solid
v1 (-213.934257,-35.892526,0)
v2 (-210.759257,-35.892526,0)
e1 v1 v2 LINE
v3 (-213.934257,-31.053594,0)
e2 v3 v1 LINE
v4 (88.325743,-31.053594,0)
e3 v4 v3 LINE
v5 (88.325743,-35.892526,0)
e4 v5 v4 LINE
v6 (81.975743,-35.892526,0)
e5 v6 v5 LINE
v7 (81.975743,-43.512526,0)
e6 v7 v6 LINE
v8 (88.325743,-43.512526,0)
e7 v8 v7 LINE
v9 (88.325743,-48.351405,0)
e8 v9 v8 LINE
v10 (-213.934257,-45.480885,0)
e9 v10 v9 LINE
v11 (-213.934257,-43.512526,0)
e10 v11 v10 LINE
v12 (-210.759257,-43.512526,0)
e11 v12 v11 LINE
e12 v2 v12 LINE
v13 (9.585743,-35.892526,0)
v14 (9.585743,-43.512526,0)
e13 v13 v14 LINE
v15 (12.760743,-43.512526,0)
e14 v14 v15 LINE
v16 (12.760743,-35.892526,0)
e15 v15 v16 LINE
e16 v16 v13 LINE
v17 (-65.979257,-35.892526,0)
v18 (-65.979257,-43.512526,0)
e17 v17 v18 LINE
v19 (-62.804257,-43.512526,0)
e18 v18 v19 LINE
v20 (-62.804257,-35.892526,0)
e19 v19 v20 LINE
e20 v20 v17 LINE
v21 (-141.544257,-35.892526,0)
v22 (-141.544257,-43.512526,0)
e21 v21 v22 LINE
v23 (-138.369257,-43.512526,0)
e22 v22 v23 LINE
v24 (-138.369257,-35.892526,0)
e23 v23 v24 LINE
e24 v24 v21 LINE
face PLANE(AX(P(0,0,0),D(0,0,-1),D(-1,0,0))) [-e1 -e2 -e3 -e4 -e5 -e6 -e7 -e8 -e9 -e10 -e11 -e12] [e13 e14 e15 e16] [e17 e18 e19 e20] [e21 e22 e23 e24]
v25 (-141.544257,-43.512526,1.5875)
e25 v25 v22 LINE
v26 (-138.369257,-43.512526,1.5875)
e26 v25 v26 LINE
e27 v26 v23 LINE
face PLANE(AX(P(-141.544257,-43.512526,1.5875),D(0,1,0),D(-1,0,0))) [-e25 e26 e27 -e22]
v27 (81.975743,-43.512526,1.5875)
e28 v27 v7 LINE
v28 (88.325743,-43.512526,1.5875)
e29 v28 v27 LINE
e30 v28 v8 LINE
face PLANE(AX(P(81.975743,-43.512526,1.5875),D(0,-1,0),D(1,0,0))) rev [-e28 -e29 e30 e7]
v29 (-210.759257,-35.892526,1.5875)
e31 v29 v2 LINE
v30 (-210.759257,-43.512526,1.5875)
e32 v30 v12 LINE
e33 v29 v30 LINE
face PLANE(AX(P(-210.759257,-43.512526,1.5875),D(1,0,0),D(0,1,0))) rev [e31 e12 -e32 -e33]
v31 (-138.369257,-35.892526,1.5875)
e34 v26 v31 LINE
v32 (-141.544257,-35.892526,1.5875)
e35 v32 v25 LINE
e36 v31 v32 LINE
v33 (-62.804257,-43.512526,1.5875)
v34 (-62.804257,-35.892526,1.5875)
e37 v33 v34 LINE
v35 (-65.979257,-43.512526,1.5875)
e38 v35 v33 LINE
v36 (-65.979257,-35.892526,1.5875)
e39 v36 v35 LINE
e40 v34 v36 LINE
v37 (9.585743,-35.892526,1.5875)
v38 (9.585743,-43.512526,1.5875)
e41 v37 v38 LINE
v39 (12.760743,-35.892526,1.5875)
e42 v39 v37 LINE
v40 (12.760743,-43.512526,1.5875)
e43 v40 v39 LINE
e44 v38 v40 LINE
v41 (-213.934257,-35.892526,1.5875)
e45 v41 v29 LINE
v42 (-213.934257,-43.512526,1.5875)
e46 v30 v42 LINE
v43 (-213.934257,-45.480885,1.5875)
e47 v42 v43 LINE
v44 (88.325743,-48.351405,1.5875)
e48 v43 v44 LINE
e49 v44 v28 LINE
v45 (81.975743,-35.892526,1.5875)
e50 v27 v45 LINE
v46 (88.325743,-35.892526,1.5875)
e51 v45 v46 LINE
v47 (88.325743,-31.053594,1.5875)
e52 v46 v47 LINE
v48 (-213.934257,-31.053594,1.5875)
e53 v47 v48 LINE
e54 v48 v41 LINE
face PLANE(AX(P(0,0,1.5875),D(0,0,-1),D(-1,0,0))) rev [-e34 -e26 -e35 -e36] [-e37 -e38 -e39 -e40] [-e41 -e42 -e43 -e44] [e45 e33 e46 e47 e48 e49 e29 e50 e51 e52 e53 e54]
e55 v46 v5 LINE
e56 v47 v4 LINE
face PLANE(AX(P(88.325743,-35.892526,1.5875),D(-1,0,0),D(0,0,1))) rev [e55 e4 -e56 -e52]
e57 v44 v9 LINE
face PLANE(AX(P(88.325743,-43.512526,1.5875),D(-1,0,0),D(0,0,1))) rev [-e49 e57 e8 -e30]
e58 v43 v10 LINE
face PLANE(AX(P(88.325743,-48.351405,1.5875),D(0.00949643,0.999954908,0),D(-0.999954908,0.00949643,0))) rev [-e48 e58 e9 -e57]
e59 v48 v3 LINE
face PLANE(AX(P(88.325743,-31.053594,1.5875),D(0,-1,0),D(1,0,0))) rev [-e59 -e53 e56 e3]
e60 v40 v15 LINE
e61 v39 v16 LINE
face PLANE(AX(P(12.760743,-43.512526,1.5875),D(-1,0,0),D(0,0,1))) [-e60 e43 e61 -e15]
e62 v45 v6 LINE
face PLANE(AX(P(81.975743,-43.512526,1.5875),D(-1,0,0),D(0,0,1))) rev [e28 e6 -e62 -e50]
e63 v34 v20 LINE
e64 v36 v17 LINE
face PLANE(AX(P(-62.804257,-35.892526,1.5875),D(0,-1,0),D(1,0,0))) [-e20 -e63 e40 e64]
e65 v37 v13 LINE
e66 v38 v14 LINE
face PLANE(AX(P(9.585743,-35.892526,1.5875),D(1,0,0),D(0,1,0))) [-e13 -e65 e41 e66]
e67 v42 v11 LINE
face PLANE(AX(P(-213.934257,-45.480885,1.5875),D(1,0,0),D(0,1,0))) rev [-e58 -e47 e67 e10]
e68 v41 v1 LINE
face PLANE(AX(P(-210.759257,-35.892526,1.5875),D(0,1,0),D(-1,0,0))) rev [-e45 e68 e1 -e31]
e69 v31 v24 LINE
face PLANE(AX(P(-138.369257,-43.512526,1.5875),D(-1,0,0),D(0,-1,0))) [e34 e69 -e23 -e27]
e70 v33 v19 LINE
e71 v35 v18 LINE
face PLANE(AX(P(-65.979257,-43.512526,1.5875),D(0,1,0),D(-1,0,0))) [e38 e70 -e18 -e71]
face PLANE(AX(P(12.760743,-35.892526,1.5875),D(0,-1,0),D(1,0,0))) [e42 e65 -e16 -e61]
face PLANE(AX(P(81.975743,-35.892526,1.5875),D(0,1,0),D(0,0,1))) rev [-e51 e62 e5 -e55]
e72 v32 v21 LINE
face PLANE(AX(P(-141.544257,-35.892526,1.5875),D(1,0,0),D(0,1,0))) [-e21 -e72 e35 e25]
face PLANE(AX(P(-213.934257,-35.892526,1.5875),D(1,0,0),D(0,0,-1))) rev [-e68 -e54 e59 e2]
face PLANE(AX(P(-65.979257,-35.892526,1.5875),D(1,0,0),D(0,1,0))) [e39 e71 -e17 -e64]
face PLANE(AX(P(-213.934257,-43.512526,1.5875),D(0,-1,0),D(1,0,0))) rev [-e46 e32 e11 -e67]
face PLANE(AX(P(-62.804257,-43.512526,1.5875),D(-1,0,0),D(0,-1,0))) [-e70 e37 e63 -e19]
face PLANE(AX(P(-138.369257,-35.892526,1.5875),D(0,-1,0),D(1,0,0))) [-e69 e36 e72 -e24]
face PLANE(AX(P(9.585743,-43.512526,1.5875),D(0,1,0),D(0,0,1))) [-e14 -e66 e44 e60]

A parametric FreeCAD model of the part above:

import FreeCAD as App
import Part
import Sketcher

V = App.Vector
Q = App.Units.Quantity

doc = App.newDocument("Part")
body = doc.addObject("PartDesign::Body", "Body")

sketch1 = doc.addObject("Sketcher::SketchObject", "Sketch")
body.addObject(sketch1)
sketch1.AttachmentSupport = (doc.XY_Plane, [""])
sketch1.MapMode = "FlatFace"
sketch1.addGeometry([
    Part.LineSegment(V(88.3, -48.4, 0), V(88.3, -43.5, 0)),
    Part.LineSegment(V(88.3, -43.5, 0), V(82, -43.5, 0)),
    Part.LineSegment(V(82, -43.5, 0), V(82, -35.9, 0)),
    Part.LineSegment(V(82, -35.9, 0), V(88.3, -35.9, 0)),
    Part.LineSegment(V(88.3, -35.9, 0), V(88.3, -31.1, 0)),
    Part.LineSegment(V(88.3, -31.1, 0), V(-213.9, -31.1, 0)),
    Part.LineSegment(V(-213.9, -31.1, 0), V(-213.9, -35.9, 0)),
    Part.LineSegment(V(-213.9, -35.9, 0), V(-210.8, -35.9, 0)),
    Part.LineSegment(V(-210.8, -35.9, 0), V(-210.8, -43.5, 0)),
    Part.LineSegment(V(-210.8, -43.5, 0), V(-213.9, -43.5, 0)),
    Part.LineSegment(V(-213.9, -43.5, 0), V(-213.9, -45.5, 0)),
    Part.LineSegment(V(-213.9, -45.5, 0), V(88.3, -48.4, 0)),
    Part.LineSegment(V(9.6, -43.5, 0), V(9.6, -35.9, 0)),
    Part.LineSegment(V(9.6, -35.9, 0), V(12.8, -35.9, 0)),
    Part.LineSegment(V(12.8, -35.9, 0), V(12.8, -43.5, 0)),
    Part.LineSegment(V(12.8, -43.5, 0), V(9.6, -43.5, 0)),
    Part.LineSegment(V(-66, -43.5, 0), V(-66, -35.9, 0)),
    Part.LineSegment(V(-66, -35.9, 0), V(-62.8, -35.9, 0)),
    Part.LineSegment(V(-62.8, -35.9, 0), V(-62.8, -43.5, 0)),
    Part.LineSegment(V(-62.8, -43.5, 0), V(-66, -43.5, 0)),
    Part.LineSegment(V(-141.5, -43.5, 0), V(-141.5, -35.9, 0)),
    Part.LineSegment(V(-141.5, -35.9, 0), V(-138.4, -35.9, 0)),
    Part.LineSegment(V(-138.4, -35.9, 0), V(-138.4, -43.5, 0)),
    Part.LineSegment(V(-138.4, -43.5, 0), V(-141.5, -43.5, 0)),
], False)
sketch1.addConstraint([
    Sketcher.Constraint("Coincident", 0, 2, 1, 1),
    Sketcher.Constraint("Coincident", 1, 2, 2, 1),
    Sketcher.Constraint("Coincident", 2, 2, 3, 1),
    Sketcher.Constraint("Coincident", 3, 2, 4, 1),
    Sketcher.Constraint("Coincident", 4, 2, 5, 1),
    Sketcher.Constraint("Coincident", 5, 2, 6, 1),
    Sketcher.Constraint("Coincident", 6, 2, 7, 1),
    Sketcher.Constraint("Coincident", 7, 2, 8, 1),
    Sketcher.Constraint("Coincident", 8, 2, 9, 1),
    Sketcher.Constraint("Coincident", 9, 2, 10, 1),
    Sketcher.Constraint("Coincident", 10, 2, 11, 1),
    Sketcher.Constraint("Coincident", 11, 2, 0, 1),
    Sketcher.Constraint("Coincident", 12, 2, 13, 1),
    Sketcher.Constraint("Coincident", 13, 2, 14, 1),
    Sketcher.Constraint("Coincident", 14, 2, 15, 1),
    Sketcher.Constraint("Coincident", 15, 2, 12, 1),
    Sketcher.Constraint("Coincident", 16, 2, 17, 1),
    Sketcher.Constraint("Coincident", 17, 2, 18, 1),
    Sketcher.Constraint("Coincident", 18, 2, 19, 1),
    Sketcher.Constraint("Coincident", 19, 2, 16, 1),
    Sketcher.Constraint("Coincident", 20, 2, 21, 1),
    Sketcher.Constraint("Coincident", 21, 2, 22, 1),
    Sketcher.Constraint("Coincident", 22, 2, 23, 1),
    Sketcher.Constraint("Coincident", 23, 2, 20, 1),
    Sketcher.Constraint("Vertical", 0),
    Sketcher.Constraint("Horizontal", 1),
    Sketcher.Constraint("Vertical", 2),
    Sketcher.Constraint("Horizontal", 3),
    Sketcher.Constraint("Vertical", 4),
    Sketcher.Constraint("Horizontal", 5),
    Sketcher.Constraint("Vertical", 6),
    Sketcher.Constraint("Horizontal", 7),
    Sketcher.Constraint("Vertical", 8),
    Sketcher.Constraint("Horizontal", 9),
    Sketcher.Constraint("Vertical", 10),
    Sketcher.Constraint("Vertical", 12),
    Sketcher.Constraint("Horizontal", 13),
    Sketcher.Constraint("Vertical", 14),
    Sketcher.Constraint("Horizontal", 15),
    Sketcher.Constraint("Vertical", 16),
    Sketcher.Constraint("Horizontal", 17),
    Sketcher.Constraint("Vertical", 18),
    Sketcher.Constraint("Horizontal", 19),
    Sketcher.Constraint("Vertical", 20),
    Sketcher.Constraint("Horizontal", 21),
    Sketcher.Constraint("Vertical", 22),
    Sketcher.Constraint("Horizontal", 23),
    Sketcher.Constraint("Horizontal", 3, 2, 6, 2),
    Sketcher.Constraint("Horizontal", 1, 2, 8, 2),
    Sketcher.Constraint("Horizontal", 7, 2, 12, 2),
    Sketcher.Constraint("Horizontal", 9, 2, 14, 2),
    Sketcher.Constraint("Horizontal", 13, 2, 16, 2),
    Sketcher.Constraint("Horizontal", 15, 2, 18, 2),
    Sketcher.Constraint("Horizontal", 17, 2, 20, 2),
    Sketcher.Constraint("Horizontal", 19, 2, 22, 2),
    Sketcher.Constraint("Vertical", 0, 2, 3, 2),
    Sketcher.Constraint("Vertical", 6, 2, 9, 2),
    Sketcher.Constraint("Equal", 9, 13),
    Sketcher.Constraint("Equal", 15, 17),
    Sketcher.Constraint("Equal", 19, 21),
    Sketcher.Constraint("DistanceX", 5, 2, 5, 1, Q("11.9 in")),
    Sketcher.Constraint("DistanceY", 2, 1, 2, 2, Q("0.3 in")),
    Sketcher.Constraint("DistanceX", 1, 2, 1, 1, Q("0.25 in")),
    Sketcher.Constraint("DistanceX", 12, 2, 3, 2, Q("3.1 in")),
    Sketcher.Constraint("DistanceX", 16, 2, 13, 2, Q("3.1 in")),
    Sketcher.Constraint("DistanceX", 7, 1, 7, 2, Q("0.125 in")),
    Sketcher.Constraint("DistanceX", 6, 2, 20, 2, Q("2.85 in")),
    Sketcher.Constraint("DistanceY", 0, 1, 0, 2, 4.838879),
    Sketcher.Constraint("DistanceY", 4, 1, 4, 2, 4.838932),
    Sketcher.Constraint("DistanceY", 10, 2, 10, 1, 1.968359),
    Sketcher.Constraint("DistanceX", -1, 1, 0, 2, 88.325743),
    Sketcher.Constraint("DistanceY", 0, 2, -1, 1, 43.512526),
])
pad1 = doc.addObject("PartDesign::Pad", "Pad")
body.addObject(pad1)
pad1.Profile = sketch1
pad1.Length = Q("0.0625 in")

doc.recompute()
